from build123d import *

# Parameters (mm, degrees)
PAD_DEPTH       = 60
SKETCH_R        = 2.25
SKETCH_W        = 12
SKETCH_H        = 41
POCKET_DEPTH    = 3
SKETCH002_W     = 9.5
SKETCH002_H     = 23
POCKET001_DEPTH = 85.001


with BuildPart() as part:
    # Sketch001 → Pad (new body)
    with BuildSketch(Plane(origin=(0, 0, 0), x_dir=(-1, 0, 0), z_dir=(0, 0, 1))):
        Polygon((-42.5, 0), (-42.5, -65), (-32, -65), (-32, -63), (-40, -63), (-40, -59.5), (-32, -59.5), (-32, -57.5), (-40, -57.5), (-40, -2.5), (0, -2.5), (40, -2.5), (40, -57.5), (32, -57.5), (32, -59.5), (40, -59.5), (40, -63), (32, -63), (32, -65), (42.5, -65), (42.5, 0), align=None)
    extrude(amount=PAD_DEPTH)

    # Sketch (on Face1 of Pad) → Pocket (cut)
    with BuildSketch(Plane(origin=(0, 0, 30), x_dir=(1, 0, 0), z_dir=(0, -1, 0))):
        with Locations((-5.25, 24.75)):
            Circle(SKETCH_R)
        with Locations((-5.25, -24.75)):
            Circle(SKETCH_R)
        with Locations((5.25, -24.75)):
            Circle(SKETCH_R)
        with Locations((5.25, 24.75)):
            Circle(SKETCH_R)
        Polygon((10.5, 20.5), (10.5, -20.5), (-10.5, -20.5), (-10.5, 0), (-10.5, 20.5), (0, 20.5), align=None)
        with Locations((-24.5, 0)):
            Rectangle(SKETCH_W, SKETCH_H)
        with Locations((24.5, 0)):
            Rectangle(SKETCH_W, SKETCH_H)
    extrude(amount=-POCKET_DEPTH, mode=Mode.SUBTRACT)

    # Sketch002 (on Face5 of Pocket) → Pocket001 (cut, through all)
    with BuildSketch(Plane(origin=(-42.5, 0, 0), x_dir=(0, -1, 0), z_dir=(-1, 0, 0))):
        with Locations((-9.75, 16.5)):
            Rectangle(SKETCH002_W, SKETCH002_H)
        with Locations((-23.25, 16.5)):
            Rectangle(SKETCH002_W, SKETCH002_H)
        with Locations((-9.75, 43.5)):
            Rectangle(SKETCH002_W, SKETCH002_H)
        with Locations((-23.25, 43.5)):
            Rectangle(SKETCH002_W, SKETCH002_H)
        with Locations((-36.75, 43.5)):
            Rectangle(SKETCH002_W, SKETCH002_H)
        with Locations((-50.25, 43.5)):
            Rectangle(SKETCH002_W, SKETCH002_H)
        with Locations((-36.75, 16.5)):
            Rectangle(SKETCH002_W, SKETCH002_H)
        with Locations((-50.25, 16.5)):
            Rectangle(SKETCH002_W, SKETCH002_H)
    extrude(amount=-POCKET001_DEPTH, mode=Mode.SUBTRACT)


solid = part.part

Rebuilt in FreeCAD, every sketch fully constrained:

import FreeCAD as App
import Part
import Sketcher
Q = App.Units.Quantity

doc = App.newDocument("Part")
body = doc.addObject("PartDesign::Body", "Body")

# Sketch on XY plane
sketch1 = body.newObject("Sketcher::SketchObject", "Sketch")
sketch1.AttachmentSupport = (doc.getObject("XY_Plane"), [""])
sketch1.MapMode = "FlatFace"
sketch1.addGeometry([
    Part.LineSegment(App.Vector(42.5, 0, 0), App.Vector(42.5, 65, 0)),  # 0
    Part.LineSegment(App.Vector(42.5, 65, 0), App.Vector(32, 65, 0)),  # 1
    Part.LineSegment(App.Vector(32, 65, 0), App.Vector(32, 63, 0)),  # 2
    Part.LineSegment(App.Vector(32, 63, 0), App.Vector(40, 63, 0)),  # 3
    Part.LineSegment(App.Vector(40, 63, 0), App.Vector(40, 59.5, 0)),  # 4
    Part.LineSegment(App.Vector(40, 59.5, 0), App.Vector(32, 59.5, 0)),  # 5
    Part.LineSegment(App.Vector(32, 59.5, 0), App.Vector(32, 57.5, 0)),  # 6
    Part.LineSegment(App.Vector(32, 57.5, 0), App.Vector(40, 57.5, 0)),  # 7
    Part.LineSegment(App.Vector(40, 57.5, 0), App.Vector(40, 2.5, 0)),  # 8
    Part.LineSegment(App.Vector(40, 2.5, 0), App.Vector(-40, 2.5, 0)),  # 9
    Part.LineSegment(App.Vector(-40, 2.5, 0), App.Vector(-40, 57.5, 0)),  # 10
    Part.LineSegment(App.Vector(-40, 57.5, 0), App.Vector(-32, 57.5, 0)),  # 11
    Part.LineSegment(App.Vector(-32, 57.5, 0), App.Vector(-32, 59.5, 0)),  # 12
    Part.LineSegment(App.Vector(-32, 59.5, 0), App.Vector(-40, 59.5, 0)),  # 13
    Part.LineSegment(App.Vector(-40, 59.5, 0), App.Vector(-40, 63, 0)),  # 14
    Part.LineSegment(App.Vector(-40, 63, 0), App.Vector(-32, 63, 0)),  # 15
    Part.LineSegment(App.Vector(-32, 63, 0), App.Vector(-32, 65, 0)),  # 16
    Part.LineSegment(App.Vector(-32, 65, 0), App.Vector(-42.5, 65, 0)),  # 17
    Part.LineSegment(App.Vector(-42.5, 65, 0), App.Vector(-42.5, 0, 0)),  # 18
    Part.LineSegment(App.Vector(-42.5, 0, 0), App.Vector(42.5, 0, 0)),  # 19
], False)
sketch1.addConstraint([
    Sketcher.Constraint("Coincident", 0, 2, 1, 1),
    Sketcher.Constraint("Coincident", 1, 2, 2, 1),
    Sketcher.Constraint("Coincident", 2, 2, 3, 1),
    Sketcher.Constraint("Coincident", 3, 2, 4, 1),
    Sketcher.Constraint("Coincident", 4, 2, 5, 1),
    Sketcher.Constraint("Coincident", 5, 2, 6, 1),
    Sketcher.Constraint("Coincident", 6, 2, 7, 1),
    Sketcher.Constraint("Coincident", 7, 2, 8, 1),
    Sketcher.Constraint("Coincident", 8, 2, 9, 1),
    Sketcher.Constraint("Coincident", 9, 2, 10, 1),
    Sketcher.Constraint("Coincident", 10, 2, 11, 1),
    Sketcher.Constraint("Coincident", 11, 2, 12, 1),
    Sketcher.Constraint("Coincident", 12, 2, 13, 1),
    Sketcher.Constraint("Coincident", 13, 2, 14, 1),
    Sketcher.Constraint("Coincident", 14, 2, 15, 1),
    Sketcher.Constraint("Coincident", 15, 2, 16, 1),
    Sketcher.Constraint("Coincident", 16, 2, 17, 1),
    Sketcher.Constraint("Coincident", 17, 2, 18, 1),
    Sketcher.Constraint("Coincident", 18, 2, 19, 1),
    Sketcher.Constraint("Coincident", 19, 2, 0, 1),
    Sketcher.Constraint("Vertical", 0),
    Sketcher.Constraint("Horizontal", 1),
    Sketcher.Constraint("Vertical", 2),
    Sketcher.Constraint("Horizontal", 3),
    Sketcher.Constraint("Vertical", 4),
    Sketcher.Constraint("Horizontal", 5),
    Sketcher.Constraint("Vertical", 6),
    Sketcher.Constraint("Horizontal", 7),
    Sketcher.Constraint("Vertical", 8),
    Sketcher.Constraint("Horizontal", 9),
    Sketcher.Constraint("Vertical", 10),
    Sketcher.Constraint("Horizontal", 11),
    Sketcher.Constraint("Vertical", 12),
    Sketcher.Constraint("Horizontal", 13),
    Sketcher.Constraint("Vertical", 14),
    Sketcher.Constraint("Horizontal", 15),
    Sketcher.Constraint("Vertical", 16),
    Sketcher.Constraint("Horizontal", 17),
    Sketcher.Constraint("Vertical", 18),
    Sketcher.Constraint("Horizontal", 19),
    Sketcher.Constraint("Symmetric", 18, 2, 19, 2, -1, 1),
    Sketcher.Constraint("Symmetric", 7, 2, 10, 2, -2),
    Sketcher.Constraint("Symmetric", 5, 2, 12, 2, -2),
    Sketcher.Constraint("Symmetric", 3, 2, 14, 2, -2),
    Sketcher.Constraint("Symmetric", 1, 2, 16, 2, -2),
    Sketcher.Constraint("Vertical", 2, 2, 5, 2),
    Sketcher.Constraint("Vertical", 4, 2, 7, 2),
    Sketcher.Constraint("Equal", 2, 6),
    Sketcher.Constraint("DistanceX", 3, 1, 3, 2, Q("8 mm")),
    Sketcher.Constraint("DistanceX", 9, 2, 9, 1, Q("80 mm")),
    Sketcher.Constraint("DistanceX", 19, 1, 19, 2, Q("85 mm")),
    Sketcher.Constraint("DistanceY", 0, 1, 0, 2, Q("65 mm")),
    Sketcher.Constraint("DistanceY", 2, 2, 2, 1, Q("2 mm")),
    Sketcher.Constraint("DistanceY", 8, 2, 8, 1, Q("55 mm")),
    Sketcher.Constraint("DistanceY", 4, 2, 4, 1, Q("3.5 mm")),
])
pad1 = body.newObject("PartDesign::Pad", "Pad")
pad1.Profile = sketch1
pad1.Length = 60

# Sketch on XZ plane
sketch2 = body.newObject("Sketcher::SketchObject", "Sketch001")
sketch2.AttachmentSupport = (doc.getObject("XZ_Plane"), [""])
sketch2.MapMode = "FlatFace"
sketch2.addGeometry([
    Part.Circle(App.Vector(-5.2, 54.8, 0), App.Vector(0, 0, 1), 2.2),  # 0
    Part.Circle(App.Vector(-5.2, 5.2, 0), App.Vector(0, 0, 1), 2.2),  # 1
    Part.Circle(App.Vector(5.2, 5.2, 0), App.Vector(0, 0, 1), 2.2),  # 2
    Part.Circle(App.Vector(5.2, 54.8, 0), App.Vector(0, 0, 1), 2.2),  # 3
    Part.LineSegment(App.Vector(10.5, 9.5, 0), App.Vector(10.5, 50.5, 0)),  # 4
    Part.LineSegment(App.Vector(10.5, 50.5, 0), App.Vector(-10.5, 50.5, 0)),  # 5
    Part.LineSegment(App.Vector(-10.5, 50.5, 0), App.Vector(-10.5, 9.5, 0)),  # 6
    Part.LineSegment(App.Vector(-10.5, 9.5, 0), App.Vector(10.5, 9.5, 0)),  # 7
    Part.LineSegment(App.Vector(-30.5, 50.5, 0), App.Vector(-30.5, 9.5, 0)),  # 8
    Part.LineSegment(App.Vector(-30.5, 9.5, 0), App.Vector(-18.5, 9.5, 0)),  # 9
    Part.LineSegment(App.Vector(-18.5, 9.5, 0), App.Vector(-18.5, 50.5, 0)),  # 10
    Part.LineSegment(App.Vector(-18.5, 50.5, 0), App.Vector(-30.5, 50.5, 0)),  # 11
    Part.LineSegment(App.Vector(18.5, 50.5, 0), App.Vector(18.5, 9.5, 0)),  # 12
    Part.LineSegment(App.Vector(18.5, 9.5, 0), App.Vector(30.5, 9.5, 0)),  # 13
    Part.LineSegment(App.Vector(30.5, 9.5, 0), App.Vector(30.5, 50.5, 0)),  # 14
    Part.LineSegment(App.Vector(30.5, 50.5, 0), App.Vector(18.5, 50.5, 0)),  # 15
], False)
sketch2.addConstraint([
    Sketcher.Constraint("Coincident", 4, 2, 5, 1),
    Sketcher.Constraint("Coincident", 5, 2, 6, 1),
    Sketcher.Constraint("Coincident", 6, 2, 7, 1),
    Sketcher.Constraint("Coincident", 7, 2, 4, 1),
    Sketcher.Constraint("Coincident", 8, 2, 9, 1),
    Sketcher.Constraint("Coincident", 9, 2, 10, 1),
    Sketcher.Constraint("Coincident", 10, 2, 11, 1),
    Sketcher.Constraint("Coincident", 11, 2, 8, 1),
    Sketcher.Constraint("Coincident", 12, 2, 13, 1),
    Sketcher.Constraint("Coincident", 13, 2, 14, 1),
    Sketcher.Constraint("Coincident", 14, 2, 15, 1),
    Sketcher.Constraint("Coincident", 15, 2, 12, 1),
    Sketcher.Constraint("Vertical", 4),
    Sketcher.Constraint("Horizontal", 5),
    Sketcher.Constraint("Vertical", 6),
    Sketcher.Constraint("Horizontal", 7),
    Sketcher.Constraint("Vertical", 8),
    Sketcher.Constraint("Horizontal", 9),
    Sketcher.Constraint("Vertical", 10),
    Sketcher.Constraint("Horizontal", 11),
    Sketcher.Constraint("Vertical", 12),
    Sketcher.Constraint("Horizontal", 13),
    Sketcher.Constraint("Vertical", 14),
    Sketcher.Constraint("Horizontal", 15),
    Sketcher.Constraint("Equal", 0, 1),
    Sketcher.Constraint("Equal", 1, 2),
    Sketcher.Constraint("Equal", 2, 3),
    Sketcher.Constraint("Symmetric", 1, 3, 2, 3, -2),
    Sketcher.Constraint("Symmetric", 0, 3, 3, 3, -2),
    Sketcher.Constraint("Symmetric", 9, 2, 12, 2, -2),
    Sketcher.Constraint("Symmetric", 11, 2, 14, 2, -2),
    Sketcher.Constraint("Horizontal", 7, 2, 8, 2),
    Sketcher.Constraint("Horizontal", 5, 2, 10, 2),
    Sketcher.Constraint("Vertical", 0, 3, 1, 3),
    Sketcher.Constraint("Diameter", 0, Q("4.5 mm")),
    Sketcher.Constraint("DistanceX", 5, 2, 5, 1, Q("21 mm")),
    Sketcher.Constraint("DistanceX", 9, 1, 9, 2, Q("12 mm")),
    Sketcher.Constraint("DistanceY", 4, 1, 4, 2, Q("41 mm")),
    Sketcher.Constraint("DistanceX", 8, 2, 6, 2, Q("20 mm")),
    Sketcher.Constraint("DistanceX", 7, 2, 12, 2, Q("8 mm")),
    Sketcher.Constraint("DistanceY", -1, 1, 4, 2, Q("50.5 mm")),
    Sketcher.Constraint("DistanceY", 1, 3, 0, 3, Q("49.5 mm")),
    Sketcher.Constraint("DistanceX", 1, 3, 2, 3, Q("10.5 mm")),
    Sketcher.Constraint("DistanceY", -1, 1, 0, 3, Q("54.75 mm")),
])
pocket1 = body.newObject("PartDesign::Pocket", "Pocket")
pocket1.Profile = sketch2
pocket1.Length = 3

# Sketch on YZ plane
sketch3 = body.newObject("Sketcher::SketchObject", "Sketch002")
sketch3.AttachmentSupport = (doc.getObject("YZ_Plane"), [""])
sketch3.MapMode = "FlatFace"
sketch3.AttachmentOffset = App.Placement(App.Vector(0, 0, -42.5), App.Rotation())
sketch3.addGeometry([
    Part.LineSegment(App.Vector(14, 28, 0), App.Vector(14, 5, 0)),  # 0
    Part.LineSegment(App.Vector(14, 5, 0), App.Vector(5, 5, 0)),  # 1
    Part.LineSegment(App.Vector(5, 5, 0), App.Vector(5, 28, 0)),  # 2
    Part.LineSegment(App.Vector(5, 28, 0), App.Vector(14, 28, 0)),  # 3
    Part.LineSegment(App.Vector(28, 28, 0), App.Vector(28, 5, 0)),  # 4
    Part.LineSegment(App.Vector(28, 5, 0), App.Vector(18, 5, 0)),  # 5
    Part.LineSegment(App.Vector(18, 5, 0), App.Vector(18, 28, 0)),  # 6
    Part.LineSegment(App.Vector(18, 28, 0), App.Vector(28, 28, 0)),  # 7
    Part.LineSegment(App.Vector(14, 55, 0), App.Vector(14, 32, 0)),  # 8
    Part.LineSegment(App.Vector(14, 32, 0), App.Vector(5, 32, 0)),  # 9
    Part.LineSegment(App.Vector(5, 32, 0), App.Vector(5, 55, 0)),  # 10
    Part.LineSegment(App.Vector(5, 55, 0), App.Vector(14, 55, 0)),  # 11
    Part.LineSegment(App.Vector(28, 55, 0), App.Vector(28, 32, 0)),  # 12
    Part.LineSegment(App.Vector(28, 32, 0), App.Vector(18, 32, 0)),  # 13
    Part.LineSegment(App.Vector(18, 32, 0), App.Vector(18, 55, 0)),  # 14
    Part.LineSegment(App.Vector(18, 55, 0), App.Vector(28, 55, 0)),  # 15
    Part.LineSegment(App.Vector(42, 55, 0), App.Vector(42, 32, 0)),  # 16
    Part.LineSegment(App.Vector(42, 32, 0), App.Vector(32, 32, 0)),  # 17
    Part.LineSegment(App.Vector(32, 32, 0), App.Vector(32, 55, 0)),  # 18
    Part.LineSegment(App.Vector(32, 55, 0), App.Vector(42, 55, 0)),  # 19
    Part.LineSegment(App.Vector(55, 55, 0), App.Vector(55, 32, 0)),  # 20
    Part.LineSegment(App.Vector(55, 32, 0), App.Vector(46, 32, 0)),  # 21
    Part.LineSegment(App.Vector(46, 32, 0), App.Vector(46, 55, 0)),  # 22
    Part.LineSegment(App.Vector(46, 55, 0), App.Vector(55, 55, 0)),  # 23
    Part.LineSegment(App.Vector(42, 28, 0), App.Vector(42, 5, 0)),  # 24
    Part.LineSegment(App.Vector(42, 5, 0), App.Vector(32, 5, 0)),  # 25
    Part.LineSegment(App.Vector(32, 5, 0), App.Vector(32, 28, 0)),  # 26
    Part.LineSegment(App.Vector(32, 28, 0), App.Vector(42, 28, 0)),  # 27
    Part.LineSegment(App.Vector(55, 28, 0), App.Vector(55, 5, 0)),  # 28
    Part.LineSegment(App.Vector(55, 5, 0), App.Vector(46, 5, 0)),  # 29
    Part.LineSegment(App.Vector(46, 5, 0), App.Vector(46, 28, 0)),  # 30
    Part.LineSegment(App.Vector(46, 28, 0), App.Vector(55, 28, 0)),  # 31
], False)
sketch3.addConstraint([
    Sketcher.Constraint("Coincident", 0, 2, 1, 1),
    Sketcher.Constraint("Coincident", 1, 2, 2, 1),
    Sketcher.Constraint("Coincident", 2, 2, 3, 1),
    Sketcher.Constraint("Coincident", 3, 2, 0, 1),
    Sketcher.Constraint("Coincident", 4, 2, 5, 1),
    Sketcher.Constraint("Coincident", 5, 2, 6, 1),
    Sketcher.Constraint("Coincident", 6, 2, 7, 1),
    Sketcher.Constraint("Coincident", 7, 2, 4, 1),
    Sketcher.Constraint("Coincident", 8, 2, 9, 1),
    Sketcher.Constraint("Coincident", 9, 2, 10, 1),
    Sketcher.Constraint("Coincident", 10, 2, 11, 1),
    Sketcher.Constraint("Coincident", 11, 2, 8, 1),
    Sketcher.Constraint("Coincident", 12, 2, 13, 1),
    Sketcher.Constraint("Coincident", 13, 2, 14, 1),
    Sketcher.Constraint("Coincident", 14, 2, 15, 1),
    Sketcher.Constraint("Coincident", 15, 2, 12, 1),
    Sketcher.Constraint("Coincident", 16, 2, 17, 1),
    Sketcher.Constraint("Coincident", 17, 2, 18, 1),
    Sketcher.Constraint("Coincident", 18, 2, 19, 1),
    Sketcher.Constraint("Coincident", 19, 2, 16, 1),
    Sketcher.Constraint("Coincident", 20, 2, 21, 1),
    Sketcher.Constraint("Coincident", 21, 2, 22, 1),
    Sketcher.Constraint("Coincident", 22, 2, 23, 1),
    Sketcher.Constraint("Coincident", 23, 2, 20, 1),
    Sketcher.Constraint("Coincident", 24, 2, 25, 1),
    Sketcher.Constraint("Coincident", 25, 2, 26, 1),
    Sketcher.Constraint("Coincident", 26, 2, 27, 1),
    Sketcher.Constraint("Coincident", 27, 2, 24, 1),
    Sketcher.Constraint("Coincident", 28, 2, 29, 1),
    Sketcher.Constraint("Coincident", 29, 2, 30, 1),
    Sketcher.Constraint("Coincident", 30, 2, 31, 1),
    Sketcher.Constraint("Coincident", 31, 2, 28, 1),
    Sketcher.Constraint("Vertical", 0),
    Sketcher.Constraint("Horizontal", 1),
    Sketcher.Constraint("Vertical", 2),
    Sketcher.Constraint("Horizontal", 3),
    Sketcher.Constraint("Vertical", 4),
    Sketcher.Constraint("Horizontal", 5),
    Sketcher.Constraint("Vertical", 6),
    Sketcher.Constraint("Horizontal", 7),
    Sketcher.Constraint("Vertical", 8),
    Sketcher.Constraint("Horizontal", 9),
    Sketcher.Constraint("Vertical", 10),
    Sketcher.Constraint("Horizontal", 11),
    Sketcher.Constraint("Vertical", 12),
    Sketcher.Constraint("Horizontal", 13),
    Sketcher.Constraint("Vertical", 14),
    Sketcher.Constraint("Horizontal", 15),
    Sketcher.Constraint("Vertical", 16),
    Sketcher.Constraint("Horizontal", 17),
    Sketcher.Constraint("Vertical", 18),
    Sketcher.Constraint("Horizontal", 19),
    Sketcher.Constraint("Vertical", 20),
    Sketcher.Constraint("Horizontal", 21),
    Sketcher.Constraint("Vertical", 22),
    Sketcher.Constraint("Horizontal", 23),
    Sketcher.Constraint("Vertical", 24),
    Sketcher.Constraint("Horizontal", 25),
    Sketcher.Constraint("Vertical", 26),
    Sketcher.Constraint("Horizontal", 27),
    Sketcher.Constraint("Vertical", 28),
    Sketcher.Constraint("Horizontal", 29),
    Sketcher.Constraint("Vertical", 30),
    Sketcher.Constraint("Horizontal", 31),
    Sketcher.Constraint("Horizontal", 1, 2, 4, 2),
    Sketcher.Constraint("Horizontal", 3, 2, 6, 2),
    Sketcher.Constraint("Horizontal", 9, 2, 12, 2),
    Sketcher.Constraint("Horizontal", 11, 2, 14, 2),
    Sketcher.Constraint("Horizontal", 13, 2, 16, 2),
    Sketcher.Constraint("Horizontal", 15, 2, 18, 2),
    Sketcher.Constraint("Horizontal", 17, 2, 20, 2),
    Sketcher.Constraint("Horizontal", 19, 2, 22, 2),
    Sketcher.Constraint("Horizontal", 5, 2, 24, 2),
    Sketcher.Constraint("Horizontal", 7, 2, 26, 2),
    Sketcher.Constraint("Horizontal", 25, 2, 28, 2),
    Sketcher.Constraint("Horizontal", 27, 2, 30, 2),
    Sketcher.Constraint("Vertical", 3, 2, 8, 2),
    Sketcher.Constraint("Vertical", 2, 2, 9, 2),
    Sketcher.Constraint("Vertical", 7, 2, 12, 2),
    Sketcher.Constraint("Vertical", 6, 2, 13, 2),
    Sketcher.Constraint("Vertical", 19, 2, 24, 2),
    Sketcher.Constraint("Vertical", 18, 2, 25, 2),
    Sketcher.Constraint("Vertical", 23, 2, 28, 2),
    Sketcher.Constraint("Vertical", 22, 2, 29, 2),
    Sketcher.Constraint("Equal", 3, 5),
    Sketcher.Constraint("Equal", 15, 17),
    Sketcher.Constraint("Equal", 19, 21),
    Sketcher.Constraint("Equal", 6, 8),
    Sketcher.Constraint("DistanceY", 0, 2, 0, 1, Q("23 mm")),
    Sketcher.Constraint("DistanceX", 1, 2, 1, 1, Q("9.5 mm")),
    Sketcher.Constraint("DistanceY", -1, 1, 0, 2, Q("5 mm")),
    Sketcher.Constraint("DistanceX", -1, 1, 1, 2, Q("5 mm")),
    Sketcher.Constraint("DistanceX", -1, 1, 4, 2, Q("28 mm")),
    Sketcher.Constraint("DistanceY", -1, 1, 8, 2, Q("32 mm")),
    Sketcher.Constraint("DistanceX", -1, 1, 17, 2, Q("32 mm")),
    Sketcher.Constraint("DistanceX", -1, 1, 20, 2, Q("55 mm")),
])
pocket2 = body.newObject("PartDesign::Pocket", "Pocket001")
pocket2.Profile = sketch3
pocket2.Type = "ThroughAll"
pocket2.Reversed = True

doc.recompute()
